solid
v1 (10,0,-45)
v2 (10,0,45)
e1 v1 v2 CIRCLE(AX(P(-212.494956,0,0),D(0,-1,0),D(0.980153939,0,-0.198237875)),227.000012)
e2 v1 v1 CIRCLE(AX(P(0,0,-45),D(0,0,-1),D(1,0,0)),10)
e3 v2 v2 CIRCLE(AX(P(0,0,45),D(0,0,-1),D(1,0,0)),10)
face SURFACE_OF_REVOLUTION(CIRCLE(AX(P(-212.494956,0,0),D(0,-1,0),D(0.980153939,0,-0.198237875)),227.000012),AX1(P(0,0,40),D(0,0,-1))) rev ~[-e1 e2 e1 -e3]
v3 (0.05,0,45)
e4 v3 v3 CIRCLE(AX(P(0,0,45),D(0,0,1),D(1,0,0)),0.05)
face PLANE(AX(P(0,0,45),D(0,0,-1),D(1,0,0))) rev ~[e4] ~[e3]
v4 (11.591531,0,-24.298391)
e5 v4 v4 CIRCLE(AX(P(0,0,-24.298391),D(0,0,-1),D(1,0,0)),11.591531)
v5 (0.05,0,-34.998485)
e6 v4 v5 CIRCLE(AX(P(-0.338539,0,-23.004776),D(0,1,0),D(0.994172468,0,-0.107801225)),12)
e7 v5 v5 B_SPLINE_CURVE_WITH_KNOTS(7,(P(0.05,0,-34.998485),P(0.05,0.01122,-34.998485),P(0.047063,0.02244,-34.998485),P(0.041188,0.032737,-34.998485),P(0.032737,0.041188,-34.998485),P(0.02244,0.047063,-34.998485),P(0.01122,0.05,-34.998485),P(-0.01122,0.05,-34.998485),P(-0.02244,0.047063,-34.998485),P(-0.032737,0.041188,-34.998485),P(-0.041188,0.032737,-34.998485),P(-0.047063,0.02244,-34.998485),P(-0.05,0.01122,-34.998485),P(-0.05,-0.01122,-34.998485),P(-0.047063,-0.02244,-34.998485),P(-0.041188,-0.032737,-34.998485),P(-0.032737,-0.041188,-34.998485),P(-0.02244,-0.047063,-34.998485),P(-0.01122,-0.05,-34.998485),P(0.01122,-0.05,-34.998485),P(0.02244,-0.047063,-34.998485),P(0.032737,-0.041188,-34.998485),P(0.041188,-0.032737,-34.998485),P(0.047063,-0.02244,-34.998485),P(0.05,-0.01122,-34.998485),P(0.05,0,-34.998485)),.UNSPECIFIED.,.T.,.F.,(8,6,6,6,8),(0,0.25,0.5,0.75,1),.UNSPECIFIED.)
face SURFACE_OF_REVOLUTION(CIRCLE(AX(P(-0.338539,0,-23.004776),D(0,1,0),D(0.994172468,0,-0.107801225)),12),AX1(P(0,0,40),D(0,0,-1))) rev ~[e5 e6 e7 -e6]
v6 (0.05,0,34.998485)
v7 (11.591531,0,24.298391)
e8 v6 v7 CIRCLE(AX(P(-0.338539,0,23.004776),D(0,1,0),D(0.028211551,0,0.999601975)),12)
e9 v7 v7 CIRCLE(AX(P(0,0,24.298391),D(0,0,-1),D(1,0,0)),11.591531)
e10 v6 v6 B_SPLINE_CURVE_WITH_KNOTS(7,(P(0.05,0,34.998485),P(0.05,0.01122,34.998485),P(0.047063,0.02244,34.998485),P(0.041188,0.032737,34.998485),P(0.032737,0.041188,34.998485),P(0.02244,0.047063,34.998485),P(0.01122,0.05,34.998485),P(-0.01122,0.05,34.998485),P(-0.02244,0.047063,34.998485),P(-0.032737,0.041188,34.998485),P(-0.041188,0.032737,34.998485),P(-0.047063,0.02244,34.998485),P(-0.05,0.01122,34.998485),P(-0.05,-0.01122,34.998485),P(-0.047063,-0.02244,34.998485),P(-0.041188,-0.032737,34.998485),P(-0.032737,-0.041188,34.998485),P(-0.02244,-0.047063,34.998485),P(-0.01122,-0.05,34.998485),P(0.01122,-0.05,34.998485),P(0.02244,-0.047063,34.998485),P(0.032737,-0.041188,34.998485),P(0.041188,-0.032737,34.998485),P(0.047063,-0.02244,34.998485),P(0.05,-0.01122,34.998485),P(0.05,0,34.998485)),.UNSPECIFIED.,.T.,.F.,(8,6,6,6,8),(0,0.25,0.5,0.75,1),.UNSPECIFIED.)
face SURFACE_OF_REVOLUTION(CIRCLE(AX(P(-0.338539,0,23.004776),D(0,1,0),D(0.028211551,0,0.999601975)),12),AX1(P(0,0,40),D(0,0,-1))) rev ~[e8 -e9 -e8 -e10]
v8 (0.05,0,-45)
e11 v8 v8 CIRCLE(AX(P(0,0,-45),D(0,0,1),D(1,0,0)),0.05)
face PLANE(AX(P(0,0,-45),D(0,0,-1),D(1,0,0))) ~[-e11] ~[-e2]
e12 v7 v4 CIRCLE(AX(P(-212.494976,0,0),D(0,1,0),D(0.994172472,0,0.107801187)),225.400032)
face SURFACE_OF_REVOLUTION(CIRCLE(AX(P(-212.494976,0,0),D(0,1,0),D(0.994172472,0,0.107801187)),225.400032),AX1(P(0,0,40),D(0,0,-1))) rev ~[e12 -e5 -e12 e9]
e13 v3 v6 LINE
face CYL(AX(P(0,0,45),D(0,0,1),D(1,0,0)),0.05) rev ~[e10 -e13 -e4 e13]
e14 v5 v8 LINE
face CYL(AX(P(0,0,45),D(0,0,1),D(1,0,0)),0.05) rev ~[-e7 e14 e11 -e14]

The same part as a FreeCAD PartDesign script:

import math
import FreeCAD as App
import Part
import Sketcher
from FreeCAD import Vector

doc = App.newDocument("Part")
params = doc.addObject("Spreadsheet::Sheet", "Params")
for row, (alias, value) in enumerate([
    ("sketch1_radius", "12 mm"),
    ("sketch1_width", "10 mm"),
    ("revolution_angle", "360 deg"),
    ("sketch2_diameter", "0.1 mm"),
], start=1):
    params.set(f"A{row}", alias)
    params.set(f"B{row}", "=" + value)
    params.setAlias(f"B{row}", alias)

body = doc.addObject("PartDesign::Body", "Body")

# Sketch on XZ plane
sketch1 = body.newObject("Sketcher::SketchObject", "Sketch")
sketch1.AttachmentSupport = (doc.getObject("XZ_Plane"), [""])
sketch1.MapMode = "FlatFace"
sketch1.addGeometry([
    Part.LineSegment(Vector(10, 45, 0), Vector(0, 45, 0)),  # 0
    Part.LineSegment(Vector(0, 45, 0), Vector(0, 35, 0)),  # 1
    Part.ArcOfCircle(Part.Circle(Vector(0, 23, 0), Vector(0, 0, 1), 12), math.radians(6), math.radians(88)),  # 2
    Part.ArcOfCircle(Part.Circle(Vector(-212, 0, 0), Vector(0, 0, 1), 225), math.radians(-6.19), math.radians(6.19)),  # 3
    Part.ArcOfCircle(Part.Circle(Vector(0, -23, 0), Vector(0, 0, 1), 12), math.radians(-88), math.radians(-6)),  # 4
    Part.LineSegment(Vector(0, -35, 0), Vector(0, -45, 0)),  # 5
    Part.LineSegment(Vector(0, -45, 0), Vector(10, -45, 0)),  # 6
    Part.ArcOfCircle(Part.Circle(Vector(-212, 0, 0), Vector(0, 0, 1), 227), math.radians(-11), math.radians(11)),  # 7
], False)
sketch1.addConstraint([
    Sketcher.Constraint("Coincident", 0, 2, 1, 1),
    Sketcher.Constraint("Coincident", 1, 2, 2, 2),
    Sketcher.Constraint("Tangent", 2, 1, 3, 2),
    Sketcher.Constraint("Tangent", 3, 1, 4, 2),
    Sketcher.Constraint("Coincident", 4, 1, 5, 1),
    Sketcher.Constraint("Coincident", 5, 2, 6, 1),
    Sketcher.Constraint("Coincident", 6, 2, 7, 1),
    Sketcher.Constraint("Coincident", 7, 2, 0, 1),
    Sketcher.Constraint("Horizontal", 0),
    Sketcher.Constraint("Vertical", 1),
    Sketcher.Constraint("Vertical", 5),
    Sketcher.Constraint("Horizontal", 6),
    Sketcher.Constraint("Equal", 2, 4),
    Sketcher.Constraint("Symmetric", 1, 2, 4, 1, -1, 1),
    Sketcher.Constraint("Symmetric", 2, 3, 4, 3, -1),
    Sketcher.Constraint("Symmetric", 6, 2, 7, 2, -1),
    Sketcher.Constraint("Equal", 6, 1),
    Sketcher.Constraint("Radius", 2, 12.0),
    Sketcher.Constraint("DistanceX", 0, 2, 0, 1, 10.0),
    Sketcher.Constraint("DistanceY", -1, 1, 0, 2, 45.0),
    Sketcher.Constraint("Radius", 3, 225.400032),
    Sketcher.Constraint("Radius", 7, 227.000012),
    Sketcher.Constraint("DistanceX", 2, 3, -1, 1, 0.338539),
])
sketch1.setExpression("Constraints[17]", "Params.sketch1_radius")
sketch1.setExpression("Constraints[18]", "Params.sketch1_width")
revolution = body.newObject("PartDesign::Revolution", "Revolution")
revolution.Profile = sketch1
revolution.ReferenceAxis = (sketch1, ["V_Axis"])
revolution.setExpression("Angle", "Params.revolution_angle")

# Sketch on XY plane
sketch2 = body.newObject("Sketcher::SketchObject", "Sketch001")
sketch2.AttachmentSupport = (doc.getObject("XY_Plane"), [""])
sketch2.MapMode = "FlatFace"
sketch2.AttachmentOffset = App.Placement(Vector(0, 0, 45), App.Rotation())
sketch2.addGeometry(Part.Circle(Vector(0, 0, 0), Vector(0, 0, 1), 0.05), False)
sketch2.addConstraint([
    Sketcher.Constraint("Coincident", 0, 3, -1, 1),
    Sketcher.Constraint("Diameter", 0, 0.1),
])
sketch2.setExpression("Constraints[1]", "Params.sketch2_diameter")
pocket1 = body.newObject("PartDesign::Pocket", "Pocket")
pocket1.Profile = sketch2
pocket1.Type = "ThroughAll"

doc.recompute()
